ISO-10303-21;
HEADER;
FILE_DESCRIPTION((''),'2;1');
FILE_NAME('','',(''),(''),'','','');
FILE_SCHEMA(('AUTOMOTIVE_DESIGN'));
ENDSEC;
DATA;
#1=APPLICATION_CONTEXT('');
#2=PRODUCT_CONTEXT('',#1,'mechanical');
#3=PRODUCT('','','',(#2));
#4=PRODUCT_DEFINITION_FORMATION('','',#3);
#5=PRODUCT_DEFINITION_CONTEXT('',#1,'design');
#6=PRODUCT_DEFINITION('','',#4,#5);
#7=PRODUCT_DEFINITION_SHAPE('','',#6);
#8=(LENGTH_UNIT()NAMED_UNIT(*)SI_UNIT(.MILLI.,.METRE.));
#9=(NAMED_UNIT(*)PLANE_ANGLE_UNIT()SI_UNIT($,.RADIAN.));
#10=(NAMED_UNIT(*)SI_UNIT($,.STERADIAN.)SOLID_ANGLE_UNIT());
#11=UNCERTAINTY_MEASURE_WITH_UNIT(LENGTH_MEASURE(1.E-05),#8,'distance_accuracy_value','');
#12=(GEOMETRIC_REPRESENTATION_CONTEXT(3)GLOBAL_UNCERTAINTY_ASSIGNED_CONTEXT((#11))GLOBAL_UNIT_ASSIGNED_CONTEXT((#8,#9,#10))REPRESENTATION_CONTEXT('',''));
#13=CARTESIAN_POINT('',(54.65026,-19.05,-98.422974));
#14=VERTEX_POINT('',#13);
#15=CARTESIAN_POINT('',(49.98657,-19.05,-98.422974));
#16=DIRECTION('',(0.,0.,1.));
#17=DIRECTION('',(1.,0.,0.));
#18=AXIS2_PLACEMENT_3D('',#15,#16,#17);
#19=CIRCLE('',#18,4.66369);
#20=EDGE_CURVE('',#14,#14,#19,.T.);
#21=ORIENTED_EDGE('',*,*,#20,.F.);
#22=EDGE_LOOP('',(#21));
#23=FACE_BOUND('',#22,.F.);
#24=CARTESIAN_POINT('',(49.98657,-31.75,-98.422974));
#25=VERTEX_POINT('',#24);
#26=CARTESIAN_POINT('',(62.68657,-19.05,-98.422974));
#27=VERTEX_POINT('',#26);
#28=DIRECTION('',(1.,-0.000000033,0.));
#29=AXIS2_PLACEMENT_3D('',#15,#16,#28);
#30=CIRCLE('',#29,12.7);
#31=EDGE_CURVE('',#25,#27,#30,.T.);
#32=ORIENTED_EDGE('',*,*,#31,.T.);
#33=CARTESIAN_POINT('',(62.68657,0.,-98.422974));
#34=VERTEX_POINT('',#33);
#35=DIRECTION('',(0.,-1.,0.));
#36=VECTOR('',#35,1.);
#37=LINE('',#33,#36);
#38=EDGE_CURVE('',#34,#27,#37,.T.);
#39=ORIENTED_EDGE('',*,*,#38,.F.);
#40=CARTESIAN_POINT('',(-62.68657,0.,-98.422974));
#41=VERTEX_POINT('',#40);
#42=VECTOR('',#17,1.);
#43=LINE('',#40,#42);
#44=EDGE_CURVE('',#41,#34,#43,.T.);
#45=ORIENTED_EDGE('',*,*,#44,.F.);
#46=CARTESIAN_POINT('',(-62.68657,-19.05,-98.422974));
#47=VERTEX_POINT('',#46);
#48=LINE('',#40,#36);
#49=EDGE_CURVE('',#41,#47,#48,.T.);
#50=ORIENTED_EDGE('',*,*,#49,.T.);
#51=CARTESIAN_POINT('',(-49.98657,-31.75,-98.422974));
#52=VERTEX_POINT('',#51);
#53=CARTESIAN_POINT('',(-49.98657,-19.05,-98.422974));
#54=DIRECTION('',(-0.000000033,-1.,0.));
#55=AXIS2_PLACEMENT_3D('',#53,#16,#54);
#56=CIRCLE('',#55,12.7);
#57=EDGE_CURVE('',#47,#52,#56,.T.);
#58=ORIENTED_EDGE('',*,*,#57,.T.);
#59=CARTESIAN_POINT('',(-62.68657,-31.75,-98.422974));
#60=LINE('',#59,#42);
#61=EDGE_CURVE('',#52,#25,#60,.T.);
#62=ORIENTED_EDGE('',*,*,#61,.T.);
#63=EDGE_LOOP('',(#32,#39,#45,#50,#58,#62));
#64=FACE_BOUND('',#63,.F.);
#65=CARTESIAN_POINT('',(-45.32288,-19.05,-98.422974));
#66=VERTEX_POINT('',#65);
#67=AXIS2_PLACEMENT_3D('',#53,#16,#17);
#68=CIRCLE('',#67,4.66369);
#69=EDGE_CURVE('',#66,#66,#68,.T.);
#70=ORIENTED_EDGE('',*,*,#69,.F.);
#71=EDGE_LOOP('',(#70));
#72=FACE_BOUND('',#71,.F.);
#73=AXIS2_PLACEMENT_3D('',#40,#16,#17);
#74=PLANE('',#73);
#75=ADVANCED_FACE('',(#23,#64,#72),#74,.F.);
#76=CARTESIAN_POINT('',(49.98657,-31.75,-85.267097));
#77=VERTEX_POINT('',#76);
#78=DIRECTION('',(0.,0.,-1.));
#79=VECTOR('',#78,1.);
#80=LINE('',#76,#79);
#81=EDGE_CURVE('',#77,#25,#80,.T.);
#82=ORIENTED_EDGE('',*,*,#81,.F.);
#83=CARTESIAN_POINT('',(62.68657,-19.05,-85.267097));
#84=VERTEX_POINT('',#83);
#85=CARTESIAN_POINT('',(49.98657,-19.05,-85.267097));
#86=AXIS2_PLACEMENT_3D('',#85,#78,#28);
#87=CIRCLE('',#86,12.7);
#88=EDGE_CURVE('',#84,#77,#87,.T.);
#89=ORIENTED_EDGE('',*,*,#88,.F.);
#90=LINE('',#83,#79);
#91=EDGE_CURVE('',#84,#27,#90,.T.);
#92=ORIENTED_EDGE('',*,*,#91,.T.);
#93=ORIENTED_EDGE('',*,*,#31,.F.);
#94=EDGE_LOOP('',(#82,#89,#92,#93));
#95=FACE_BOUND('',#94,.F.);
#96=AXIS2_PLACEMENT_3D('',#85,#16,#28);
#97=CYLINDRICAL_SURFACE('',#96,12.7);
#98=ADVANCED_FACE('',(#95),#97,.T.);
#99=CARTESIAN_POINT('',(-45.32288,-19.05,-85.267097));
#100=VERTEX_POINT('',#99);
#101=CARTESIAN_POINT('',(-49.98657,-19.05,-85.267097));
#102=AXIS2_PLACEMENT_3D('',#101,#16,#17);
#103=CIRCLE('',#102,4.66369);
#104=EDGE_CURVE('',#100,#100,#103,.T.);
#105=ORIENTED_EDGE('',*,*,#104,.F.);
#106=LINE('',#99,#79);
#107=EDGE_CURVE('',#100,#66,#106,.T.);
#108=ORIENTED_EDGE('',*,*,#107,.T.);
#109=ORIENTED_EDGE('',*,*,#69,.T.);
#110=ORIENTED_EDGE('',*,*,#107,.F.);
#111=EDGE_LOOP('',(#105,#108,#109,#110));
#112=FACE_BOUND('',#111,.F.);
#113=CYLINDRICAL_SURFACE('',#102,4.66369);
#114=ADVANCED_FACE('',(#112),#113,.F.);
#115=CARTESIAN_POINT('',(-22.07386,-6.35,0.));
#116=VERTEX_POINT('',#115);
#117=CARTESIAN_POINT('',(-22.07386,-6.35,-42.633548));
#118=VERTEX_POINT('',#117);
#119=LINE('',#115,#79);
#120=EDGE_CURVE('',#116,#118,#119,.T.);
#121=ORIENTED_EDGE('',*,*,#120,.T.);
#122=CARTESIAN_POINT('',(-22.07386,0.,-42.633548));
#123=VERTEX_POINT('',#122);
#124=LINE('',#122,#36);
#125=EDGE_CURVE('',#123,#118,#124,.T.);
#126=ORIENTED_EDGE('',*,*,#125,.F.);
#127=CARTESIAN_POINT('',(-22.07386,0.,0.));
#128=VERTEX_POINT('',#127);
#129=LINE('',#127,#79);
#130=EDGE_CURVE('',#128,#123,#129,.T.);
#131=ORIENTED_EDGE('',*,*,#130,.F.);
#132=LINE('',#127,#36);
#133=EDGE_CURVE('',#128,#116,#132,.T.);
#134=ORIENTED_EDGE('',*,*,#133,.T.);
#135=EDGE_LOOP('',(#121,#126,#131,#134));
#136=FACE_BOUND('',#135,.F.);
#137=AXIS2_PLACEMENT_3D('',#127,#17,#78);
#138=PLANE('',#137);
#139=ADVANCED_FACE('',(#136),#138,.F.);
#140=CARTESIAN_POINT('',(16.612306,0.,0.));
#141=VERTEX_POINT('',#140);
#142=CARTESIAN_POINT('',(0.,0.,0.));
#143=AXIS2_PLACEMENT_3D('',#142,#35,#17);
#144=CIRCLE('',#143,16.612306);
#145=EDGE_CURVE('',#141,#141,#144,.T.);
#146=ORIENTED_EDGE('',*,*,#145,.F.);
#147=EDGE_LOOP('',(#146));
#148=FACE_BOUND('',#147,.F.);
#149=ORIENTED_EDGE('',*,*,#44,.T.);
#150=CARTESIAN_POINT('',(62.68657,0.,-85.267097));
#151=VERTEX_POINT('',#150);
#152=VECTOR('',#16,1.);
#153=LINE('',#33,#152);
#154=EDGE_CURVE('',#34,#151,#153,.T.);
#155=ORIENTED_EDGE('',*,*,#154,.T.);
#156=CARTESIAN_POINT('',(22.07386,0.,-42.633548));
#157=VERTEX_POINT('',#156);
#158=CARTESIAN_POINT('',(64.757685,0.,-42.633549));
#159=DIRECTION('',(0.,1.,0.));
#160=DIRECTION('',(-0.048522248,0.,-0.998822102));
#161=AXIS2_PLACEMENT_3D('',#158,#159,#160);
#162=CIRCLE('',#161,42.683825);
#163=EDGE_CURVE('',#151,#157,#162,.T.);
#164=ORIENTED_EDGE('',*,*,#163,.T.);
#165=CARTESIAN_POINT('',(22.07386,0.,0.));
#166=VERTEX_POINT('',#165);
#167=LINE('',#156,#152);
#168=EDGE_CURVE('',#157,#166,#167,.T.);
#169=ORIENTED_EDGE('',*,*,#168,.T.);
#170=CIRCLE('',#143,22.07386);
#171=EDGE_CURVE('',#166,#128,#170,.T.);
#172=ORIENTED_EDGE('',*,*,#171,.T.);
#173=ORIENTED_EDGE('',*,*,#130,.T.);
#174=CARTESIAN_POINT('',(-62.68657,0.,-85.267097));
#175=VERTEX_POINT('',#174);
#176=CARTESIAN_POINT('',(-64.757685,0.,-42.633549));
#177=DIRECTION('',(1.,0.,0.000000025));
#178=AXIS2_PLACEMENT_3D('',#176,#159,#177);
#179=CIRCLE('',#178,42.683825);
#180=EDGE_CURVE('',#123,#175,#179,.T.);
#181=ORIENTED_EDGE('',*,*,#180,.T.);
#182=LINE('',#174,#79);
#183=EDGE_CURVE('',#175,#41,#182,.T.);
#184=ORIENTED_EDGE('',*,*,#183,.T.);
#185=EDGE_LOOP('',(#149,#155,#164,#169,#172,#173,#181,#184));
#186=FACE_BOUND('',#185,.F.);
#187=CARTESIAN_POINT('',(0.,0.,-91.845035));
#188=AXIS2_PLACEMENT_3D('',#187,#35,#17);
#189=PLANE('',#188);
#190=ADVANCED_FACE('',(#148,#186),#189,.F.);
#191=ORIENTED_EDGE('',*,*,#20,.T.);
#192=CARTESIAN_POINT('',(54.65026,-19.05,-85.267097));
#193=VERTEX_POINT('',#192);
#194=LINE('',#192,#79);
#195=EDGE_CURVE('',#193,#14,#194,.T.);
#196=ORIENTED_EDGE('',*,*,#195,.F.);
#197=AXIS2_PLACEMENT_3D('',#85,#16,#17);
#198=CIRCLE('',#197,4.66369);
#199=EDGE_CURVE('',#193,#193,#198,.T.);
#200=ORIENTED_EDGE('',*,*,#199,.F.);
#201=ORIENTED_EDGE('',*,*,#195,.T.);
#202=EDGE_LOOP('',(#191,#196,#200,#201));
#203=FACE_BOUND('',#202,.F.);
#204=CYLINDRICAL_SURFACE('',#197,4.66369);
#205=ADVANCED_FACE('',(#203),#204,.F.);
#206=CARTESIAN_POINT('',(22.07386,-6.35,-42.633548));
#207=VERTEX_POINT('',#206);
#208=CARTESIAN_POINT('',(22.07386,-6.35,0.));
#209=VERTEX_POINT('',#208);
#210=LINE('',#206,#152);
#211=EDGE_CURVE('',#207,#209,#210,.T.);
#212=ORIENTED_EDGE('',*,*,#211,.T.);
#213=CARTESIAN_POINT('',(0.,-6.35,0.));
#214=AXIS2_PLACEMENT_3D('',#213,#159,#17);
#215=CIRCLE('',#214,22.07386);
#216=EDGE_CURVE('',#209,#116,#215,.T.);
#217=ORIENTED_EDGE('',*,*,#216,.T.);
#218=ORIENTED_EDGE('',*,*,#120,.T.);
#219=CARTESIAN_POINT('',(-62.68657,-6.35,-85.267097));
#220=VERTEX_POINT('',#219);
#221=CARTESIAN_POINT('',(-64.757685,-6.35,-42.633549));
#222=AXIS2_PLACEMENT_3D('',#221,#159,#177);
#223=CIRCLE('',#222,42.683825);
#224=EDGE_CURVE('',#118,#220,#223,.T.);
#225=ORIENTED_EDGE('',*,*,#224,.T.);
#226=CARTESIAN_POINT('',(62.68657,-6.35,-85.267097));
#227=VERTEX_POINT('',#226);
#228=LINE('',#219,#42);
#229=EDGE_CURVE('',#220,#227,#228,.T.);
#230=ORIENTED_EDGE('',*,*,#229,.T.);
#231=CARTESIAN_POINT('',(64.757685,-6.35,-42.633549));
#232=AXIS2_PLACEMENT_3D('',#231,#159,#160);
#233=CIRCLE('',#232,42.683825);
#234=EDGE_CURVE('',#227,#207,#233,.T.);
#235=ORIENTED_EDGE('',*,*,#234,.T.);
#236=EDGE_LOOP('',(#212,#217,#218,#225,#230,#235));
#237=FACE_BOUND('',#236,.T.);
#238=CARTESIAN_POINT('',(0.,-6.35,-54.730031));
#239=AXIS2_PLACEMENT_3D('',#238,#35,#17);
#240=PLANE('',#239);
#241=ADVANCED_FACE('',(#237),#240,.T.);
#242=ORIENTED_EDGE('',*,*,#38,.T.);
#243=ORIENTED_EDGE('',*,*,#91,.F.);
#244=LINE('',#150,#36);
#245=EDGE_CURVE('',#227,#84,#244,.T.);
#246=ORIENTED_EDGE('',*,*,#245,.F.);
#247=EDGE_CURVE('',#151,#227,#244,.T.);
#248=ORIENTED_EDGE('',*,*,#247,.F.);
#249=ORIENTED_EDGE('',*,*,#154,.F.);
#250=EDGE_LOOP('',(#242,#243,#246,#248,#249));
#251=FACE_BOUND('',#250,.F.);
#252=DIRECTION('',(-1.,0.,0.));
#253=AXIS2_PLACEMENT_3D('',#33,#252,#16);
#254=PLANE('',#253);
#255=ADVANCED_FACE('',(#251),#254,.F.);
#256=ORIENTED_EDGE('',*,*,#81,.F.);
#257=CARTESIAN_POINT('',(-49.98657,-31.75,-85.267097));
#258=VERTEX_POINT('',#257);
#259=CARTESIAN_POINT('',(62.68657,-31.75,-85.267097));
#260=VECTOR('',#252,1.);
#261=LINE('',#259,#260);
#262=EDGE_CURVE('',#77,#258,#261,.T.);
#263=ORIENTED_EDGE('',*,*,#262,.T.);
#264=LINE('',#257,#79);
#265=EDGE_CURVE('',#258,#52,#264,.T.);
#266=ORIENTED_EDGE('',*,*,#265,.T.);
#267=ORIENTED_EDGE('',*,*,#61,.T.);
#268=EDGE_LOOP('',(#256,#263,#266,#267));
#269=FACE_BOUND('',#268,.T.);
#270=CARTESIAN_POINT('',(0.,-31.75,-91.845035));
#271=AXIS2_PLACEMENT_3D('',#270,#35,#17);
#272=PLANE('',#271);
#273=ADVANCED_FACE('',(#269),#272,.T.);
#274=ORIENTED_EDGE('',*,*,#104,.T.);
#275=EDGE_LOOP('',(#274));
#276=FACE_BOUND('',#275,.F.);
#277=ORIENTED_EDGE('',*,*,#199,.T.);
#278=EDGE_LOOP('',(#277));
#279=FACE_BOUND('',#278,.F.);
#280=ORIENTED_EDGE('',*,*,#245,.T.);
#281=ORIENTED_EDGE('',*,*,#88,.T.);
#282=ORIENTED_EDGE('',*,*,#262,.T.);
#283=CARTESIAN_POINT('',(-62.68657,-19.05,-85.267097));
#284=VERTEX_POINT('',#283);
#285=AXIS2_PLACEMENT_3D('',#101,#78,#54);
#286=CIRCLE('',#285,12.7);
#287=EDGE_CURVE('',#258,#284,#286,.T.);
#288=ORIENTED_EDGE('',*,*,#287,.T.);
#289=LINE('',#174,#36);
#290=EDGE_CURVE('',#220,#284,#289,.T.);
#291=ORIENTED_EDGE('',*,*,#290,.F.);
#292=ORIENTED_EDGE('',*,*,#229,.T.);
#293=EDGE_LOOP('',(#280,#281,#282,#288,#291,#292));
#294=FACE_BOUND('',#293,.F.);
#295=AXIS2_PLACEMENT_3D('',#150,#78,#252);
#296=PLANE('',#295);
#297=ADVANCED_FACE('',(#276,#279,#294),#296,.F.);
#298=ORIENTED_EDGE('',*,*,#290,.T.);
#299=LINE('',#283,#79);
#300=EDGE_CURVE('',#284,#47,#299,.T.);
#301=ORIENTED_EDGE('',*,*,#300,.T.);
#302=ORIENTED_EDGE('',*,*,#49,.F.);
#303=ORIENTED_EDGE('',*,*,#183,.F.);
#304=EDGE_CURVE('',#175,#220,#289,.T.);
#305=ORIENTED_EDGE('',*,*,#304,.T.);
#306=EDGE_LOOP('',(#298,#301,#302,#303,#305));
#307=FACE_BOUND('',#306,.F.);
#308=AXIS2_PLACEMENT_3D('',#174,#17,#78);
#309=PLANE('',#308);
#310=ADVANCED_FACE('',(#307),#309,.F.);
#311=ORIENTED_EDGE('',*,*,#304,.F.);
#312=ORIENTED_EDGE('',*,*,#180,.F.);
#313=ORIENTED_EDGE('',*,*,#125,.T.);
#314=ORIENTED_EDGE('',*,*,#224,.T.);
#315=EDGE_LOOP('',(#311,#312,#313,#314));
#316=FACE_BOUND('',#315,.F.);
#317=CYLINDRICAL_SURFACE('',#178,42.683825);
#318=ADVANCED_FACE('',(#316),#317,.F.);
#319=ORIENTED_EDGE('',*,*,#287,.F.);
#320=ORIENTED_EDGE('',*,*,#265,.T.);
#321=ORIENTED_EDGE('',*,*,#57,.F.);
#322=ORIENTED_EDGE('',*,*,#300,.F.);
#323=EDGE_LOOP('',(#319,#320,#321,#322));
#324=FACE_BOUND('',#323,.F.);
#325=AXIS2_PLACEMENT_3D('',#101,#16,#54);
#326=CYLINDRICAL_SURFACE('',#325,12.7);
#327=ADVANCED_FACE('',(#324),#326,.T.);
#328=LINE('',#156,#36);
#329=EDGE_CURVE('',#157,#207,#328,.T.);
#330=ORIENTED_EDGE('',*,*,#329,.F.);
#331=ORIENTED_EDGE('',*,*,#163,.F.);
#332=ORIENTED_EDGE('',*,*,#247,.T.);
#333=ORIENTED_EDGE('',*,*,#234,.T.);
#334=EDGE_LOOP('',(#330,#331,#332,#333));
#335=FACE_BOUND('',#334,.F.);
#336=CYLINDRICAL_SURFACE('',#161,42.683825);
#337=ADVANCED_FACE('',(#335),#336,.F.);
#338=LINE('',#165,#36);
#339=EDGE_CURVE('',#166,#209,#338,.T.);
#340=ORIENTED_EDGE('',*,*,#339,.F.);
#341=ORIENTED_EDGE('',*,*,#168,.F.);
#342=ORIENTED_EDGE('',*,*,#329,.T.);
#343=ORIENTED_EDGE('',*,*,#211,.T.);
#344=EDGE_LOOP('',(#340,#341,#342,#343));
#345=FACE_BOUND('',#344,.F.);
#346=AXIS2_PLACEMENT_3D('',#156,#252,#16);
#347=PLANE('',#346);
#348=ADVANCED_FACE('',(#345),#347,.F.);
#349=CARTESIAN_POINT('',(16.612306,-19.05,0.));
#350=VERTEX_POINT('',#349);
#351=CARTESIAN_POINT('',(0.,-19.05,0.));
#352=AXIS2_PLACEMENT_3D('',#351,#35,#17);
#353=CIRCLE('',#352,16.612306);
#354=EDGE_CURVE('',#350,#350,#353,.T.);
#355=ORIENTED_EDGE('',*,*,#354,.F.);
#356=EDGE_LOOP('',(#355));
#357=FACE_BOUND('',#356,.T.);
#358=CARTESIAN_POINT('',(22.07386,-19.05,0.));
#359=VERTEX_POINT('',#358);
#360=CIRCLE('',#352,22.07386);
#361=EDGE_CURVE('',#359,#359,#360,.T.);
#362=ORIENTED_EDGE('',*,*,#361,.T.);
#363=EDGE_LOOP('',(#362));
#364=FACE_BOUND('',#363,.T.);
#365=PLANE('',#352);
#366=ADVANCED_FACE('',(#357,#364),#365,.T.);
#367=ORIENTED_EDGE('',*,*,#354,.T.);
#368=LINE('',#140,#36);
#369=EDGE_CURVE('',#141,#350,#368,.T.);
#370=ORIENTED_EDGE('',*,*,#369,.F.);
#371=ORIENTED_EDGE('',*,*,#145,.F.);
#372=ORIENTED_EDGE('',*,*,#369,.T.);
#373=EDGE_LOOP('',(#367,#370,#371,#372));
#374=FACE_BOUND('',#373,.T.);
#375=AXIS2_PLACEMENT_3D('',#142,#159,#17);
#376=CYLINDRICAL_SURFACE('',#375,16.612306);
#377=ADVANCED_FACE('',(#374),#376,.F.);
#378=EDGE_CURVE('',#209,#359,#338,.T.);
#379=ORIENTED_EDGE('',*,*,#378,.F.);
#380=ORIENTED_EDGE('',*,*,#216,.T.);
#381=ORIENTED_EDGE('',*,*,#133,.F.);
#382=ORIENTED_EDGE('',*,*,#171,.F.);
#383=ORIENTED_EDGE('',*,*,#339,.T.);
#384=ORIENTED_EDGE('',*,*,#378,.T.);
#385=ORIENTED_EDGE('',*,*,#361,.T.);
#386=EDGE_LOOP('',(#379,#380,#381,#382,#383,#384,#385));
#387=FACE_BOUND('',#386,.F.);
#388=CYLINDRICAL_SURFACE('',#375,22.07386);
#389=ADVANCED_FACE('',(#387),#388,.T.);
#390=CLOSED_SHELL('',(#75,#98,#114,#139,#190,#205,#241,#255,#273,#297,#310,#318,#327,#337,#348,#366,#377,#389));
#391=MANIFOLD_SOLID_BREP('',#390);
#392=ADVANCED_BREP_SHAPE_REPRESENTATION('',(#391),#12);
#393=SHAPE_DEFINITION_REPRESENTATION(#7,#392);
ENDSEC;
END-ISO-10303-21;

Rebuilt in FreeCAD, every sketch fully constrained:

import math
import FreeCAD as App
import Part
import Sketcher
from FreeCAD import Vector
Q = App.Units.Quantity

doc = App.newDocument("Part")
params = doc.addObject("Spreadsheet::Sheet", "Params")
for row, (alias, value) in enumerate([
    ("pad1_length", "0.25 in"),
    ("pad2_length", "0.75 in"),
    ("pad3_length", "1.25 in"),
    ("sketch4_radius", "0.5 in"),
], start=1):
    params.set(f"A{row}", alias)
    params.set(f"B{row}", "=" + value)
    params.setAlias(f"B{row}", alias)

body = doc.addObject("PartDesign::Body", "Body")

sketch1 = body.newObject("Sketcher::SketchObject", "Sketch")
sketch1.AttachmentSupport = (doc.getObject("XZ_Plane"), [""])
sketch1.MapMode = "FlatFace"
sketch1.addGeometry([
    Part.LineSegment(Vector(22, -43, 0), Vector(22, 0, 0)),
    Part.ArcOfCircle(Part.Circle(Vector(0, 0, 0), Vector(0, 0, 1), 22), math.radians(180), math.radians(360)),
    Part.LineSegment(Vector(-22, 0, 0), Vector(-22, -43, 0)),
    Part.ArcOfCircle(Part.Circle(Vector(-65, -43, 0), Vector(0, 0, 1), 43), math.radians(-87), math.radians(0)),
    Part.LineSegment(Vector(-63, -85, 0), Vector(63, -85, 0)),
    Part.ArcOfCircle(Part.Circle(Vector(65, -43, 0), Vector(0, 0, 1), 43), math.radians(180), math.radians(267)),
], False)
sketch1.addConstraint([
    Sketcher.Constraint("Tangent", 0, 2, 1, 2),
    Sketcher.Constraint("Tangent", 1, 1, 2, 1),
    Sketcher.Constraint("Tangent", 2, 2, 3, 2),
    Sketcher.Constraint("Coincident", 3, 1, 4, 1),
    Sketcher.Constraint("Coincident", 4, 2, 5, 2),
    Sketcher.Constraint("Tangent", 5, 1, 0, 1),
    Sketcher.Constraint("Vertical", 0),
    Sketcher.Constraint("Vertical", 2),
    Sketcher.Constraint("Horizontal", 4),
    Sketcher.Constraint("Coincident", 1, 3, -1, 1),
    Sketcher.Constraint("Equal", 3, 5),
    Sketcher.Constraint("Horizontal", 3, 3, 5, 3),
    Sketcher.Constraint("Radius", 1, Q("22.07386 mm")),
    Sketcher.Constraint("Radius", 3, Q("42.683825 mm")),
    Sketcher.Constraint("DistanceX", 4, 1, 4, 2, Q("125.37314 mm")),
    Sketcher.Constraint("DistanceY", 0, 1, 0, 2, Q("42.633548 mm")),
])
pad1 = body.newObject("PartDesign::Pad", "Pad")
pad1.Profile = sketch1
pad1.setExpression("Length", "Params.pad1_length")

sketch2 = body.newObject("Sketcher::SketchObject", "Sketch001")
sketch2.AttachmentSupport = (doc.getObject("XZ_Plane"), [""])
sketch2.MapMode = "FlatFace"
sketch2.addGeometry([
    Part.Circle(Vector(0, 0, 0), Vector(0, 0, 1), 22),
    Part.Circle(Vector(0, 0, 0), Vector(0, 0, 1), 17),
], False)
sketch2.addConstraint([
    Sketcher.Constraint("Coincident", 0, 3, -1, 1),
    Sketcher.Constraint("Coincident", 1, 3, -1, 1),
    Sketcher.Constraint("Diameter", 0, Q("44.14772 mm")),
    Sketcher.Constraint("Diameter", 1, Q("33.224612 mm")),
])
pad2 = body.newObject("PartDesign::Pad", "Pad001")
pad2.Profile = sketch2
pad2.setExpression("Length", "Params.pad2_length")

sketch3 = body.newObject("Sketcher::SketchObject", "Sketch002")
sketch3.AttachmentSupport = (doc.getObject("XZ_Plane"), [""])
sketch3.MapMode = "FlatFace"
sketch3.addGeometry([
    Part.LineSegment(Vector(63, -98, 0), Vector(63, -85, 0)),
    Part.LineSegment(Vector(63, -85, 0), Vector(-63, -85, 0)),
    Part.LineSegment(Vector(-63, -85, 0), Vector(-63, -98, 0)),
    Part.LineSegment(Vector(-63, -98, 0), Vector(63, -98, 0)),
], False)
sketch3.addConstraint([
    Sketcher.Constraint("Coincident", 0, 2, 1, 1),
    Sketcher.Constraint("Coincident", 1, 2, 2, 1),
    Sketcher.Constraint("Coincident", 2, 2, 3, 1),
    Sketcher.Constraint("Coincident", 3, 2, 0, 1),
    Sketcher.Constraint("Vertical", 0),
    Sketcher.Constraint("Horizontal", 1),
    Sketcher.Constraint("Vertical", 2),
    Sketcher.Constraint("Horizontal", 3),
    Sketcher.Constraint("DistanceX", 1, 2, 1, 1, Q("125.37314 mm")),
    Sketcher.Constraint("DistanceY", 0, 1, 0, 2, Q("13.155877 mm")),
    Sketcher.Constraint("DistanceX", -1, 1, 0, 2, Q("62.68657 mm")),
    Sketcher.Constraint("DistanceY", 0, 2, -1, 1, Q("85.267097 mm")),
])
pad3 = body.newObject("PartDesign::Pad", "Pad002")
pad3.Profile = sketch3
pad3.setExpression("Length", "Params.pad3_length")

sketch4 = body.newObject("Sketcher::SketchObject", "Sketch003")
sketch4.AttachmentSupport = (doc.getObject("XY_Plane"), [""])
sketch4.MapMode = "FlatFace"
sketch4.AttachmentOffset = App.Placement(Vector(0, 0, -85.267097), App.Rotation())
sketch4.addGeometry([
    Part.Circle(Vector(-50, -19.1, 0), Vector(0, 0, 1), 4.7),
    Part.Circle(Vector(50, -19.1, 0), Vector(0, 0, 1), 4.7),
    Part.LineSegment(Vector(-62.7, -19.1, 0), Vector(-62.7, -31.8, 0)),
    Part.LineSegment(Vector(-62.7, -31.8, 0), Vector(-50, -31.8, 0)),
    Part.ArcOfCircle(Part.Circle(Vector(-50, -19, 0), Vector(0, 0, 1), 12.7), math.radians(-180), math.radians(-90)),
    Part.ArcOfCircle(Part.Circle(Vector(50, -19, 0), Vector(0, 0, 1), 12.7), math.radians(-90), math.radians(0)),
    Part.LineSegment(Vector(50, -31.8, 0), Vector(62.7, -31.8, 0)),
    Part.LineSegment(Vector(62.7, -31.8, 0), Vector(62.7, -19.1, 0)),
], False)
sketch4.addConstraint([
    Sketcher.Constraint("Coincident", 2, 2, 3, 1),
    Sketcher.Constraint("Tangent", 3, 2, 4, 2),
    Sketcher.Constraint("Tangent", 4, 1, 2, 1),
    Sketcher.Constraint("Tangent", 5, 1, 6, 1),
    Sketcher.Constraint("Coincident", 6, 2, 7, 1),
    Sketcher.Constraint("Tangent", 7, 2, 5, 2),
    Sketcher.Constraint("Vertical", 2),
    Sketcher.Constraint("Horizontal", 3),
    Sketcher.Constraint("Horizontal", 6),
    Sketcher.Constraint("Vertical", 7),
    Sketcher.Constraint("Coincident", 4, 3, 0, 3),
    Sketcher.Constraint("Coincident", 5, 3, 1, 3),
    Sketcher.Constraint("Equal", 0, 1),
    Sketcher.Constraint("Equal", 4, 5),
    Sketcher.Constraint("Symmetric", 0, 3, 1, 3, -2),
    Sketcher.Constraint("Radius", 4, Q("0.5 in")),
    Sketcher.Constraint("DistanceY", 0, 3, -1, 1, Q("0.75 in")),
    Sketcher.Constraint("Diameter", 0, Q("9.32738 mm")),
    Sketcher.Constraint("DistanceX", 0, 3, -1, 1, Q("49.98657 mm")),
])
sketch4.setExpression("Constraints[15]", "Params.sketch4_radius")
pocket1 = body.newObject("PartDesign::Pocket", "Pocket")
pocket1.Profile = sketch4
pocket1.Type = "ThroughAll"

doc.recompute()
